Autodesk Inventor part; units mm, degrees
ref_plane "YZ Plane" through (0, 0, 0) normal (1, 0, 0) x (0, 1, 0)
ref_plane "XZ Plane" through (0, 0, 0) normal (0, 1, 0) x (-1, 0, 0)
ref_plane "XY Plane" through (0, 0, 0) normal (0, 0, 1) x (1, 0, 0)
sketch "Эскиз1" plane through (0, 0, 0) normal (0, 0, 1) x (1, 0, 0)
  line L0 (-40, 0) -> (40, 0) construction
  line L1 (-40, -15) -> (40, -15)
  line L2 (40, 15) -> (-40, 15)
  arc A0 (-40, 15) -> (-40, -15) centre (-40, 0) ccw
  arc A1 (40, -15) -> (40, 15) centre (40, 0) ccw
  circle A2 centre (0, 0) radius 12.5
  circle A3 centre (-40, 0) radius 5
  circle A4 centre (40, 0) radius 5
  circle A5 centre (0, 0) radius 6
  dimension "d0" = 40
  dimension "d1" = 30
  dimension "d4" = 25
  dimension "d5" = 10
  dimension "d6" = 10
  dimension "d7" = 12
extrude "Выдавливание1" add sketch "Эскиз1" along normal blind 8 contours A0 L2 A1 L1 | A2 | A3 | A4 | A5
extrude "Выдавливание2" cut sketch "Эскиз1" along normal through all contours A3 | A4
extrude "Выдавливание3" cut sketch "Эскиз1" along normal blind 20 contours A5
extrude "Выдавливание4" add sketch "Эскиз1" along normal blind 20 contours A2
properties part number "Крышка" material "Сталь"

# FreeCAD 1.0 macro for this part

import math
import FreeCAD as App
import Part
import Sketcher

V = App.Vector
Q = App.Units.Quantity

doc = App.newDocument("Part")
body = doc.addObject("PartDesign::Body", "Body")

sketch1 = body.newObject("Sketcher::SketchObject", "Sketch")
sketch1.AttachmentSupport = (doc.getObject("XY_Plane"), [""])
sketch1.MapMode = "FlatFace"
sketch1.addGeometry([
    Part.ArcOfCircle(Part.Circle(V(-40, 0, 0), V(0, 0, 1), 15), math.radians(90), math.radians(270)),
    Part.LineSegment(V(-40, -15, 0), V(40, -15, 0)),
    Part.ArcOfCircle(Part.Circle(V(40, 0, 0), V(0, 0, 1), 15), math.radians(-90), math.radians(90)),
    Part.LineSegment(V(40, 15, 0), V(-40, 15, 0)),
], False)
sketch1.addConstraint([
    Sketcher.Constraint("Tangent", 0, 2, 1, 1),
    Sketcher.Constraint("Tangent", 1, 2, 2, 1),
    Sketcher.Constraint("Tangent", 2, 2, 3, 1),
    Sketcher.Constraint("Tangent", 3, 2, 0, 1),
    Sketcher.Constraint("Horizontal", 1),
    Sketcher.Constraint("Horizontal", 3),
    Sketcher.Constraint("Symmetric", 0, 3, 2, 3, -1, 1),
    Sketcher.Constraint("Radius", 0, Q("15 mm")),
    Sketcher.Constraint("DistanceX", 0, 3, -1, 1, Q("40 mm")),
])
pad1 = body.newObject("PartDesign::Pad", "Pad")
pad1.Profile = sketch1
pad1.Length = 8

sketch2 = body.newObject("Sketcher::SketchObject", "Sketch001")
sketch2.AttachmentSupport = (doc.getObject("XY_Plane"), [""])
sketch2.MapMode = "FlatFace"
sketch2.addGeometry([
    Part.Circle(V(-40, 0, 0), V(0, 0, 1), 5),
    Part.Circle(V(40, 0, 0), V(0, 0, 1), 5),
], False)
sketch2.addConstraint([
    Sketcher.Constraint("Equal", 0, 1),
    Sketcher.Constraint("Symmetric", 0, 3, 1, 3, -1, 1),
    Sketcher.Constraint("PointOnObject", 0, 3, -1),
    Sketcher.Constraint("Diameter", 0, Q("10 mm")),
    Sketcher.Constraint("DistanceX", 0, 3, -1, 1, Q("40 mm")),
])
pocket1 = body.newObject("PartDesign::Pocket", "Pocket")
pocket1.Profile = sketch2
pocket1.Type = "ThroughAll"
pocket1.Reversed = True

sketch3 = body.newObject("Sketcher::SketchObject", "Sketch002")
sketch3.AttachmentSupport = (doc.getObject("XY_Plane"), [""])
sketch3.MapMode = "FlatFace"
sketch3.addGeometry(Part.Circle(V(0, 0, 0), V(0, 0, 1), 6), False)
sketch3.addConstraint([
    Sketcher.Constraint("Coincident", 0, 3, -1, 1),
    Sketcher.Constraint("Diameter", 0, Q("12 mm")),
])
pocket2 = body.newObject("PartDesign::Pocket", "Pocket001")
pocket2.Profile = sketch3
pocket2.Length = 20
pocket2.Reversed = True

sketch4 = body.newObject("Sketcher::SketchObject", "Sketch003")
sketch4.AttachmentSupport = (doc.getObject("XY_Plane"), [""])
sketch4.MapMode = "FlatFace"
sketch4.addGeometry([
    Part.Circle(V(0, 0, 0), V(0, 0, 1), 12),
    Part.Circle(V(0, 0, 0), V(0, 0, 1), 6),
], False)
sketch4.addConstraint([
    Sketcher.Constraint("Coincident", 0, 3, -1, 1),
    Sketcher.Constraint("Coincident", 1, 3, -1, 1),
    Sketcher.Constraint("Diameter", 0, Q("25 mm")),
    Sketcher.Constraint("Diameter", 1, Q("12 mm")),
])
pad2 = body.newObject("PartDesign::Pad", "Pad001")
pad2.Profile = sketch4
pad2.Length = 20

doc.recompute()
